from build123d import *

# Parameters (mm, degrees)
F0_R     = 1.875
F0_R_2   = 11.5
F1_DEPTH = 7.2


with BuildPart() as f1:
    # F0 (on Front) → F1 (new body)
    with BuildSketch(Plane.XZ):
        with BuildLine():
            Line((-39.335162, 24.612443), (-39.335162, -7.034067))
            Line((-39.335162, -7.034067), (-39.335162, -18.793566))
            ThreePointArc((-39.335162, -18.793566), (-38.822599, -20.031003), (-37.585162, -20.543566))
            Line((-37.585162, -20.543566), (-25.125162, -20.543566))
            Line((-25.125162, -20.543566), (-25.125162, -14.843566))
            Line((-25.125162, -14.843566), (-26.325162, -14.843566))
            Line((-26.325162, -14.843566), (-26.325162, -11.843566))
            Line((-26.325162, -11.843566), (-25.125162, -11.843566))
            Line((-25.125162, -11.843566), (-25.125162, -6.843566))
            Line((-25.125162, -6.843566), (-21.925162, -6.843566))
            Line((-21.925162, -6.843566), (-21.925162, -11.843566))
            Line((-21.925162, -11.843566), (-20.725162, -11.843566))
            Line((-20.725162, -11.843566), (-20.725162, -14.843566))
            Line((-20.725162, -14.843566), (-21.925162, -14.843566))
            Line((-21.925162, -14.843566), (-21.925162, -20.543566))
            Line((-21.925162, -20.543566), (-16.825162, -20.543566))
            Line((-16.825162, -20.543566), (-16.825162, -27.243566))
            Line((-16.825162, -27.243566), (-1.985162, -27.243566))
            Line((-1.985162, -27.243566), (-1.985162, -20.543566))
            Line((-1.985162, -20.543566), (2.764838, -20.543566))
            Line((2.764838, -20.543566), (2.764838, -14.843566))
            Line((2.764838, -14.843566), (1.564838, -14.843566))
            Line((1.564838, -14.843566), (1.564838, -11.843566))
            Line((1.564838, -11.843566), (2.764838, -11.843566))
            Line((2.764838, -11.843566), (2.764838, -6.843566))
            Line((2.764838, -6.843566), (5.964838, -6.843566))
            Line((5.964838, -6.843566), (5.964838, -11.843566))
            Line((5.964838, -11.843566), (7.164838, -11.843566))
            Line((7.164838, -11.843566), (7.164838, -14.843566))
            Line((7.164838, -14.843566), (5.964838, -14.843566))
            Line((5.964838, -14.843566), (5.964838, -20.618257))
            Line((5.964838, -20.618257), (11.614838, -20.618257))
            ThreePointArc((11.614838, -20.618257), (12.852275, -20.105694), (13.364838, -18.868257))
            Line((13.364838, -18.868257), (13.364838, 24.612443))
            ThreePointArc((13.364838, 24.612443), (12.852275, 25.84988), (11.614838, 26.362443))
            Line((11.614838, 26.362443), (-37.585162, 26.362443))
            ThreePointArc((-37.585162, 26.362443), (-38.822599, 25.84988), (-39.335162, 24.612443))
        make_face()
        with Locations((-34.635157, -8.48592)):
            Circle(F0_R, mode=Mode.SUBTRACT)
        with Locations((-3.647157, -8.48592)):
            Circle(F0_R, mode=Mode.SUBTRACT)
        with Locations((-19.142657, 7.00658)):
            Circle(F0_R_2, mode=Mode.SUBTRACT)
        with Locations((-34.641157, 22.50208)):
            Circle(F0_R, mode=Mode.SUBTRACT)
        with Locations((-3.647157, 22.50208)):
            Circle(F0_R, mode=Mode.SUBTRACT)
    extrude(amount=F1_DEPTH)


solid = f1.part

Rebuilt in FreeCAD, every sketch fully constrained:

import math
import FreeCAD as App
import Part
import Sketcher
from FreeCAD import Vector
Q = App.Units.Quantity

doc = App.newDocument("Part")
body = doc.addObject("PartDesign::Body", "Body")

# Sketch on XZ plane
sketch1 = body.newObject("Sketcher::SketchObject", "Sketch")
sketch1.AttachmentSupport = (doc.getObject("XZ_Plane"), [""])
sketch1.MapMode = "FlatFace"
sketch1.addGeometry(Part.LineSegment(Vector(-39.3, 24.6, 0), Vector(-39.3, -18.8, 0)), False)
sketch1.addGeometry(Part.ArcOfCircle(Part.Circle(Vector(-37.6, -18.8, 0), Vector(0, 0, 1), 1.7), math.radians(180), math.radians(270)), False)
sketch1.addGeometry(Part.LineSegment(Vector(-37.6, -20.5, 0), Vector(-25.1, -20.5, 0)), False)
sketch1.addGeometry(Part.LineSegment(Vector(-25.1, -20.5, 0), Vector(-25.1, -14.8, 0)), False)
sketch1.addGeometry(Part.LineSegment(Vector(-25.1, -14.8, 0), Vector(-26.3, -14.8, 0)), False)
sketch1.addGeometry(Part.LineSegment(Vector(-26.3, -14.8, 0), Vector(-26.3, -11.8, 0)), False)
sketch1.addGeometry(Part.LineSegment(Vector(-26.3, -11.8, 0), Vector(-25.1, -11.8, 0)), False)
sketch1.addGeometry(Part.LineSegment(Vector(-25.1, -11.8, 0), Vector(-25.1, -6.8, 0)), False)
sketch1.addGeometry(Part.LineSegment(Vector(-25.1, -6.8, 0), Vector(-21.9, -6.8, 0)), False)
sketch1.addGeometry(Part.LineSegment(Vector(-21.9, -6.8, 0), Vector(-21.9, -11.8, 0)), False)
sketch1.addGeometry(Part.LineSegment(Vector(-21.9, -11.8, 0), Vector(-20.7, -11.8, 0)), False)
sketch1.addGeometry(Part.LineSegment(Vector(-20.7, -11.8, 0), Vector(-20.7, -14.8, 0)), False)
sketch1.addGeometry(Part.LineSegment(Vector(-20.7, -14.8, 0), Vector(-21.9, -14.8, 0)), False)
sketch1.addGeometry(Part.LineSegment(Vector(-21.9, -14.8, 0), Vector(-21.9, -20.5, 0)), False)
sketch1.addGeometry(Part.LineSegment(Vector(-21.9, -20.5, 0), Vector(-16.8, -20.5, 0)), False)
sketch1.addGeometry(Part.LineSegment(Vector(-16.8, -20.5, 0), Vector(-16.8, -27.2, 0)), False)
sketch1.addGeometry(Part.LineSegment(Vector(-16.8, -27.2, 0), Vector(-2, -27.2, 0)), False)
sketch1.addGeometry(Part.LineSegment(Vector(-2, -27.2, 0), Vector(-2, -20.5, 0)), False)
sketch1.addGeometry(Part.LineSegment(Vector(-2, -20.5, 0), Vector(2.8, -20.5, 0)), False)
sketch1.addGeometry(Part.LineSegment(Vector(2.8, -20.5, 0), Vector(2.8, -14.8, 0)), False)
sketch1.addGeometry(Part.LineSegment(Vector(2.8, -14.8, 0), Vector(1.6, -14.8, 0)), False)
sketch1.addGeometry(Part.LineSegment(Vector(1.6, -14.8, 0), Vector(1.6, -11.8, 0)), False)
sketch1.addGeometry(Part.LineSegment(Vector(1.6, -11.8, 0), Vector(2.8, -11.8, 0)), False)
sketch1.addGeometry(Part.LineSegment(Vector(2.8, -11.8, 0), Vector(2.8, -6.8, 0)), False)
sketch1.addGeometry(Part.LineSegment(Vector(2.8, -6.8, 0), Vector(6, -6.8, 0)), False)
sketch1.addGeometry(Part.LineSegment(Vector(6, -6.8, 0), Vector(6, -11.8, 0)), False)
sketch1.addGeometry(Part.LineSegment(Vector(6, -11.8, 0), Vector(7.2, -11.8, 0)), False)
sketch1.addGeometry(Part.LineSegment(Vector(7.2, -11.8, 0), Vector(7.2, -14.8, 0)), False)
sketch1.addGeometry(Part.LineSegment(Vector(7.2, -14.8, 0), Vector(6, -14.8, 0)), False)
sketch1.addGeometry(Part.LineSegment(Vector(6, -14.8, 0), Vector(6, -20.6, 0)), False)
sketch1.addGeometry(Part.LineSegment(Vector(6, -20.6, 0), Vector(11.6, -20.6, 0)), False)
sketch1.addGeometry(Part.ArcOfCircle(Part.Circle(Vector(11.6, -18.9, 0), Vector(0, 0, 1), 1.7), math.radians(-90), math.radians(0)), False)
sketch1.addGeometry(Part.LineSegment(Vector(13.4, -18.9, 0), Vector(13.4, 24.6, 0)), False)
sketch1.addGeometry(Part.ArcOfCircle(Part.Circle(Vector(11.6, 24.6, 0), Vector(0, 0, 1), 1.7), math.radians(0), math.radians(90)), False)
sketch1.addGeometry(Part.LineSegment(Vector(11.6, 26.4, 0), Vector(-37.6, 26.4, 0)), False)
sketch1.addGeometry(Part.ArcOfCircle(Part.Circle(Vector(-37.6, 24.6, 0), Vector(0, 0, 1), 1.7), math.radians(90), math.radians(180)), False)
sketch1.addGeometry(Part.Circle(Vector(-34.6, -8.5, 0), Vector(0, 0, 1), 1.9), False)
sketch1.addGeometry(Part.Circle(Vector(-3.6, -8.5, 0), Vector(0, 0, 1), 1.9), False)
sketch1.addGeometry(Part.Circle(Vector(-19.1, 7, 0), Vector(0, 0, 1), 11.5), False)
sketch1.addGeometry(Part.Circle(Vector(-34.6, 22.5, 0), Vector(0, 0, 1), 1.9), False)
sketch1.addGeometry(Part.Circle(Vector(-3.6, 22.5, 0), Vector(0, 0, 1), 1.9), False)
sketch1.addConstraint(Sketcher.Constraint("Tangent", 0, 2, 1, 1))
sketch1.addConstraint(Sketcher.Constraint("Tangent", 1, 2, 2, 1))
sketch1.addConstraint(Sketcher.Constraint("Coincident", 2, 2, 3, 1))
sketch1.addConstraint(Sketcher.Constraint("Coincident", 3, 2, 4, 1))
sketch1.addConstraint(Sketcher.Constraint("Coincident", 4, 2, 5, 1))
sketch1.addConstraint(Sketcher.Constraint("Coincident", 5, 2, 6, 1))
sketch1.addConstraint(Sketcher.Constraint("Coincident", 6, 2, 7, 1))
sketch1.addConstraint(Sketcher.Constraint("Coincident", 7, 2, 8, 1))
sketch1.addConstraint(Sketcher.Constraint("Coincident", 8, 2, 9, 1))
sketch1.addConstraint(Sketcher.Constraint("Coincident", 9, 2, 10, 1))
sketch1.addConstraint(Sketcher.Constraint("Coincident", 10, 2, 11, 1))
sketch1.addConstraint(Sketcher.Constraint("Coincident", 11, 2, 12, 1))
sketch1.addConstraint(Sketcher.Constraint("Coincident", 12, 2, 13, 1))
sketch1.addConstraint(Sketcher.Constraint("Coincident", 13, 2, 14, 1))
sketch1.addConstraint(Sketcher.Constraint("Coincident", 14, 2, 15, 1))
sketch1.addConstraint(Sketcher.Constraint("Coincident", 15, 2, 16, 1))
sketch1.addConstraint(Sketcher.Constraint("Coincident", 16, 2, 17, 1))
sketch1.addConstraint(Sketcher.Constraint("Coincident", 17, 2, 18, 1))
sketch1.addConstraint(Sketcher.Constraint("Coincident", 18, 2, 19, 1))
sketch1.addConstraint(Sketcher.Constraint("Coincident", 19, 2, 20, 1))
sketch1.addConstraint(Sketcher.Constraint("Coincident", 20, 2, 21, 1))
sketch1.addConstraint(Sketcher.Constraint("Coincident", 21, 2, 22, 1))
sketch1.addConstraint(Sketcher.Constraint("Coincident", 22, 2, 23, 1))
sketch1.addConstraint(Sketcher.Constraint("Coincident", 23, 2, 24, 1))
sketch1.addConstraint(Sketcher.Constraint("Coincident", 24, 2, 25, 1))
sketch1.addConstraint(Sketcher.Constraint("Coincident", 25, 2, 26, 1))
sketch1.addConstraint(Sketcher.Constraint("Coincident", 26, 2, 27, 1))
sketch1.addConstraint(Sketcher.Constraint("Coincident", 27, 2, 28, 1))
sketch1.addConstraint(Sketcher.Constraint("Coincident", 28, 2, 29, 1))
sketch1.addConstraint(Sketcher.Constraint("Coincident", 29, 2, 30, 1))
sketch1.addConstraint(Sketcher.Constraint("Tangent", 30, 2, 31, 1))
sketch1.addConstraint(Sketcher.Constraint("Tangent", 31, 2, 32, 1))
sketch1.addConstraint(Sketcher.Constraint("Tangent", 32, 2, 33, 1))
sketch1.addConstraint(Sketcher.Constraint("Tangent", 33, 2, 34, 1))
sketch1.addConstraint(Sketcher.Constraint("Tangent", 34, 2, 35, 1))
sketch1.addConstraint(Sketcher.Constraint("Tangent", 35, 2, 0, 1))
sketch1.addConstraint(Sketcher.Constraint("Vertical", 0))
sketch1.addConstraint(Sketcher.Constraint("Horizontal", 2))
sketch1.addConstraint(Sketcher.Constraint("Vertical", 3))
sketch1.addConstraint(Sketcher.Constraint("Horizontal", 4))
sketch1.addConstraint(Sketcher.Constraint("Vertical", 5))
sketch1.addConstraint(Sketcher.Constraint("Horizontal", 6))
sketch1.addConstraint(Sketcher.Constraint("Vertical", 7))
sketch1.addConstraint(Sketcher.Constraint("Horizontal", 8))
sketch1.addConstraint(Sketcher.Constraint("Vertical", 9))
sketch1.addConstraint(Sketcher.Constraint("Horizontal", 10))
sketch1.addConstraint(Sketcher.Constraint("Vertical", 11))
sketch1.addConstraint(Sketcher.Constraint("Horizontal", 12))
sketch1.addConstraint(Sketcher.Constraint("Vertical", 13))
sketch1.addConstraint(Sketcher.Constraint("Horizontal", 14))
sketch1.addConstraint(Sketcher.Constraint("Vertical", 15))
sketch1.addConstraint(Sketcher.Constraint("Horizontal", 16))
sketch1.addConstraint(Sketcher.Constraint("Vertical", 17))
sketch1.addConstraint(Sketcher.Constraint("Horizontal", 18))
sketch1.addConstraint(Sketcher.Constraint("Vertical", 19))
sketch1.addConstraint(Sketcher.Constraint("Horizontal", 20))
sketch1.addConstraint(Sketcher.Constraint("Vertical", 21))
sketch1.addConstraint(Sketcher.Constraint("Horizontal", 22))
sketch1.addConstraint(Sketcher.Constraint("Vertical", 23))
sketch1.addConstraint(Sketcher.Constraint("Horizontal", 24))
sketch1.addConstraint(Sketcher.Constraint("Vertical", 25))
sketch1.addConstraint(Sketcher.Constraint("Horizontal", 26))
sketch1.addConstraint(Sketcher.Constraint("Vertical", 27))
sketch1.addConstraint(Sketcher.Constraint("Horizontal", 28))
sketch1.addConstraint(Sketcher.Constraint("Vertical", 29))
sketch1.addConstraint(Sketcher.Constraint("Horizontal", 30))
sketch1.addConstraint(Sketcher.Constraint("Vertical", 32))
sketch1.addConstraint(Sketcher.Constraint("Horizontal", 34))
sketch1.addConstraint(Sketcher.Constraint("Equal", 1, 31))
sketch1.addConstraint(Sketcher.Constraint("Equal", 31, 33))
sketch1.addConstraint(Sketcher.Constraint("Equal", 33, 35))
sketch1.addConstraint(Sketcher.Constraint("Equal", 36, 37))
sketch1.addConstraint(Sketcher.Constraint("Equal", 37, 39))
sketch1.addConstraint(Sketcher.Constraint("Equal", 39, 40))
sketch1.addConstraint(Sketcher.Constraint("Horizontal", 36, 3, 37, 3))
sketch1.addConstraint(Sketcher.Constraint("Horizontal", 39, 3, 40, 3))
sketch1.addConstraint(Sketcher.Constraint("Horizontal", 6, 2, 9, 2))
sketch1.addConstraint(Sketcher.Constraint("Horizontal", 4, 2, 11, 2))
sketch1.addConstraint(Sketcher.Constraint("Horizontal", 2, 2, 13, 2))
sketch1.addConstraint(Sketcher.Constraint("Horizontal", 14, 2, 17, 2))
sketch1.addConstraint(Sketcher.Constraint("Horizontal", 12, 2, 19, 2))
sketch1.addConstraint(Sketcher.Constraint("Horizontal", 10, 2, 21, 2))
sketch1.addConstraint(Sketcher.Constraint("Horizontal", 8, 2, 23, 2))
sketch1.addConstraint(Sketcher.Constraint("Horizontal", 22, 2, 25, 2))
sketch1.addConstraint(Sketcher.Constraint("Horizontal", 20, 2, 27, 2))
sketch1.addConstraint(Sketcher.Constraint("Vertical", 37, 3, 40, 3))
sketch1.addConstraint(Sketcher.Constraint("Vertical", 3, 2, 6, 2))
sketch1.addConstraint(Sketcher.Constraint("Vertical", 9, 2, 12, 2))
sketch1.addConstraint(Sketcher.Constraint("Vertical", 19, 2, 22, 2))
sketch1.addConstraint(Sketcher.Constraint("Vertical", 25, 2, 28, 2))
sketch1.addConstraint(Sketcher.Constraint("Equal", 6, 10))
sketch1.addConstraint(Sketcher.Constraint("Equal", 12, 20))
sketch1.addConstraint(Sketcher.Constraint("Equal", 8, 24))
sketch1.addConstraint(Sketcher.Constraint("Equal", 22, 26))
sketch1.addConstraint(Sketcher.Constraint("Diameter", 38, Q("23 mm")))
sketch1.addConstraint(Sketcher.Constraint("Diameter", 36, Q("3.75 mm")))
sketch1.addConstraint(Sketcher.Constraint("DistanceY", 5, 1, 5, 2, Q("3 mm")))
sketch1.addConstraint(Sketcher.Constraint("DistanceY", 7, 1, 7, 2, Q("5 mm")))
sketch1.addConstraint(Sketcher.Constraint("Radius", 1, Q("1.75 mm")))
sketch1.addConstraint(Sketcher.Constraint("DistanceX", 4, 2, 4, 1, Q("1.2 mm")))
sketch1.addConstraint(Sketcher.Constraint("DistanceX", 8, 1, 8, 2, Q("3.2 mm")))
sketch1.addConstraint(Sketcher.Constraint("DistanceX", 14, 1, 14, 2, Q("5.1 mm")))
sketch1.addConstraint(Sketcher.Constraint("DistanceX", 34, 2, 34, 1, Q("49.2 mm")))
sketch1.addConstraint(Sketcher.Constraint("DistanceY", 3, 1, 3, 2, Q("5.7 mm")))
sketch1.addConstraint(Sketcher.Constraint("DistanceY", 15, 2, 15, 1, Q("6.7 mm")))
sketch1.addConstraint(Sketcher.Constraint("DistanceX", 2, 1, 2, 2, Q("12.46 mm")))
sketch1.addConstraint(Sketcher.Constraint("DistanceX", 16, 1, 16, 2, Q("14.84 mm")))
sketch1.addConstraint(Sketcher.Constraint("DistanceX", 18, 1, 18, 2, Q("4.75 mm")))
sketch1.addConstraint(Sketcher.Constraint("DistanceY", 32, 1, 32, 2, Q("43.4807 mm")))
sketch1.addConstraint(Sketcher.Constraint("DistanceX", 36, 3, 37, 3, Q("30.988 mm")))
sketch1.addConstraint(Sketcher.Constraint("DistanceX", 39, 3, 36, 3, Q("0.006 mm")))
sketch1.addConstraint(Sketcher.Constraint("DistanceY", 36, 3, 39, 3, Q("30.988 mm")))
sketch1.addConstraint(Sketcher.Constraint("DistanceY", 0, 2, 0, 1, Q("43.406009 mm")))
sketch1.addConstraint(Sketcher.Constraint("DistanceX", 36, 3, 38, 3, Q("15.4925 mm")))
sketch1.addConstraint(Sketcher.Constraint("DistanceY", 36, 3, 38, 3, Q("15.4925 mm")))
sketch1.addConstraint(Sketcher.Constraint("DistanceX", -1, 1, 31, 3, Q("11.614838 mm")))
sketch1.addConstraint(Sketcher.Constraint("DistanceY", 36, 3, -1, 1, Q("8.48592 mm")))
sketch1.addConstraint(Sketcher.Constraint("DistanceY", 1, 3, -1, 1, Q("18.793566 mm")))
sketch1.addConstraint(Sketcher.Constraint("DistanceX", 36, 3, -1, 1, Q("34.635157 mm")))
pad1 = body.newObject("PartDesign::Pad", "Pad")
pad1.Profile = sketch1
pad1.Length = 7.2

doc.recompute()
